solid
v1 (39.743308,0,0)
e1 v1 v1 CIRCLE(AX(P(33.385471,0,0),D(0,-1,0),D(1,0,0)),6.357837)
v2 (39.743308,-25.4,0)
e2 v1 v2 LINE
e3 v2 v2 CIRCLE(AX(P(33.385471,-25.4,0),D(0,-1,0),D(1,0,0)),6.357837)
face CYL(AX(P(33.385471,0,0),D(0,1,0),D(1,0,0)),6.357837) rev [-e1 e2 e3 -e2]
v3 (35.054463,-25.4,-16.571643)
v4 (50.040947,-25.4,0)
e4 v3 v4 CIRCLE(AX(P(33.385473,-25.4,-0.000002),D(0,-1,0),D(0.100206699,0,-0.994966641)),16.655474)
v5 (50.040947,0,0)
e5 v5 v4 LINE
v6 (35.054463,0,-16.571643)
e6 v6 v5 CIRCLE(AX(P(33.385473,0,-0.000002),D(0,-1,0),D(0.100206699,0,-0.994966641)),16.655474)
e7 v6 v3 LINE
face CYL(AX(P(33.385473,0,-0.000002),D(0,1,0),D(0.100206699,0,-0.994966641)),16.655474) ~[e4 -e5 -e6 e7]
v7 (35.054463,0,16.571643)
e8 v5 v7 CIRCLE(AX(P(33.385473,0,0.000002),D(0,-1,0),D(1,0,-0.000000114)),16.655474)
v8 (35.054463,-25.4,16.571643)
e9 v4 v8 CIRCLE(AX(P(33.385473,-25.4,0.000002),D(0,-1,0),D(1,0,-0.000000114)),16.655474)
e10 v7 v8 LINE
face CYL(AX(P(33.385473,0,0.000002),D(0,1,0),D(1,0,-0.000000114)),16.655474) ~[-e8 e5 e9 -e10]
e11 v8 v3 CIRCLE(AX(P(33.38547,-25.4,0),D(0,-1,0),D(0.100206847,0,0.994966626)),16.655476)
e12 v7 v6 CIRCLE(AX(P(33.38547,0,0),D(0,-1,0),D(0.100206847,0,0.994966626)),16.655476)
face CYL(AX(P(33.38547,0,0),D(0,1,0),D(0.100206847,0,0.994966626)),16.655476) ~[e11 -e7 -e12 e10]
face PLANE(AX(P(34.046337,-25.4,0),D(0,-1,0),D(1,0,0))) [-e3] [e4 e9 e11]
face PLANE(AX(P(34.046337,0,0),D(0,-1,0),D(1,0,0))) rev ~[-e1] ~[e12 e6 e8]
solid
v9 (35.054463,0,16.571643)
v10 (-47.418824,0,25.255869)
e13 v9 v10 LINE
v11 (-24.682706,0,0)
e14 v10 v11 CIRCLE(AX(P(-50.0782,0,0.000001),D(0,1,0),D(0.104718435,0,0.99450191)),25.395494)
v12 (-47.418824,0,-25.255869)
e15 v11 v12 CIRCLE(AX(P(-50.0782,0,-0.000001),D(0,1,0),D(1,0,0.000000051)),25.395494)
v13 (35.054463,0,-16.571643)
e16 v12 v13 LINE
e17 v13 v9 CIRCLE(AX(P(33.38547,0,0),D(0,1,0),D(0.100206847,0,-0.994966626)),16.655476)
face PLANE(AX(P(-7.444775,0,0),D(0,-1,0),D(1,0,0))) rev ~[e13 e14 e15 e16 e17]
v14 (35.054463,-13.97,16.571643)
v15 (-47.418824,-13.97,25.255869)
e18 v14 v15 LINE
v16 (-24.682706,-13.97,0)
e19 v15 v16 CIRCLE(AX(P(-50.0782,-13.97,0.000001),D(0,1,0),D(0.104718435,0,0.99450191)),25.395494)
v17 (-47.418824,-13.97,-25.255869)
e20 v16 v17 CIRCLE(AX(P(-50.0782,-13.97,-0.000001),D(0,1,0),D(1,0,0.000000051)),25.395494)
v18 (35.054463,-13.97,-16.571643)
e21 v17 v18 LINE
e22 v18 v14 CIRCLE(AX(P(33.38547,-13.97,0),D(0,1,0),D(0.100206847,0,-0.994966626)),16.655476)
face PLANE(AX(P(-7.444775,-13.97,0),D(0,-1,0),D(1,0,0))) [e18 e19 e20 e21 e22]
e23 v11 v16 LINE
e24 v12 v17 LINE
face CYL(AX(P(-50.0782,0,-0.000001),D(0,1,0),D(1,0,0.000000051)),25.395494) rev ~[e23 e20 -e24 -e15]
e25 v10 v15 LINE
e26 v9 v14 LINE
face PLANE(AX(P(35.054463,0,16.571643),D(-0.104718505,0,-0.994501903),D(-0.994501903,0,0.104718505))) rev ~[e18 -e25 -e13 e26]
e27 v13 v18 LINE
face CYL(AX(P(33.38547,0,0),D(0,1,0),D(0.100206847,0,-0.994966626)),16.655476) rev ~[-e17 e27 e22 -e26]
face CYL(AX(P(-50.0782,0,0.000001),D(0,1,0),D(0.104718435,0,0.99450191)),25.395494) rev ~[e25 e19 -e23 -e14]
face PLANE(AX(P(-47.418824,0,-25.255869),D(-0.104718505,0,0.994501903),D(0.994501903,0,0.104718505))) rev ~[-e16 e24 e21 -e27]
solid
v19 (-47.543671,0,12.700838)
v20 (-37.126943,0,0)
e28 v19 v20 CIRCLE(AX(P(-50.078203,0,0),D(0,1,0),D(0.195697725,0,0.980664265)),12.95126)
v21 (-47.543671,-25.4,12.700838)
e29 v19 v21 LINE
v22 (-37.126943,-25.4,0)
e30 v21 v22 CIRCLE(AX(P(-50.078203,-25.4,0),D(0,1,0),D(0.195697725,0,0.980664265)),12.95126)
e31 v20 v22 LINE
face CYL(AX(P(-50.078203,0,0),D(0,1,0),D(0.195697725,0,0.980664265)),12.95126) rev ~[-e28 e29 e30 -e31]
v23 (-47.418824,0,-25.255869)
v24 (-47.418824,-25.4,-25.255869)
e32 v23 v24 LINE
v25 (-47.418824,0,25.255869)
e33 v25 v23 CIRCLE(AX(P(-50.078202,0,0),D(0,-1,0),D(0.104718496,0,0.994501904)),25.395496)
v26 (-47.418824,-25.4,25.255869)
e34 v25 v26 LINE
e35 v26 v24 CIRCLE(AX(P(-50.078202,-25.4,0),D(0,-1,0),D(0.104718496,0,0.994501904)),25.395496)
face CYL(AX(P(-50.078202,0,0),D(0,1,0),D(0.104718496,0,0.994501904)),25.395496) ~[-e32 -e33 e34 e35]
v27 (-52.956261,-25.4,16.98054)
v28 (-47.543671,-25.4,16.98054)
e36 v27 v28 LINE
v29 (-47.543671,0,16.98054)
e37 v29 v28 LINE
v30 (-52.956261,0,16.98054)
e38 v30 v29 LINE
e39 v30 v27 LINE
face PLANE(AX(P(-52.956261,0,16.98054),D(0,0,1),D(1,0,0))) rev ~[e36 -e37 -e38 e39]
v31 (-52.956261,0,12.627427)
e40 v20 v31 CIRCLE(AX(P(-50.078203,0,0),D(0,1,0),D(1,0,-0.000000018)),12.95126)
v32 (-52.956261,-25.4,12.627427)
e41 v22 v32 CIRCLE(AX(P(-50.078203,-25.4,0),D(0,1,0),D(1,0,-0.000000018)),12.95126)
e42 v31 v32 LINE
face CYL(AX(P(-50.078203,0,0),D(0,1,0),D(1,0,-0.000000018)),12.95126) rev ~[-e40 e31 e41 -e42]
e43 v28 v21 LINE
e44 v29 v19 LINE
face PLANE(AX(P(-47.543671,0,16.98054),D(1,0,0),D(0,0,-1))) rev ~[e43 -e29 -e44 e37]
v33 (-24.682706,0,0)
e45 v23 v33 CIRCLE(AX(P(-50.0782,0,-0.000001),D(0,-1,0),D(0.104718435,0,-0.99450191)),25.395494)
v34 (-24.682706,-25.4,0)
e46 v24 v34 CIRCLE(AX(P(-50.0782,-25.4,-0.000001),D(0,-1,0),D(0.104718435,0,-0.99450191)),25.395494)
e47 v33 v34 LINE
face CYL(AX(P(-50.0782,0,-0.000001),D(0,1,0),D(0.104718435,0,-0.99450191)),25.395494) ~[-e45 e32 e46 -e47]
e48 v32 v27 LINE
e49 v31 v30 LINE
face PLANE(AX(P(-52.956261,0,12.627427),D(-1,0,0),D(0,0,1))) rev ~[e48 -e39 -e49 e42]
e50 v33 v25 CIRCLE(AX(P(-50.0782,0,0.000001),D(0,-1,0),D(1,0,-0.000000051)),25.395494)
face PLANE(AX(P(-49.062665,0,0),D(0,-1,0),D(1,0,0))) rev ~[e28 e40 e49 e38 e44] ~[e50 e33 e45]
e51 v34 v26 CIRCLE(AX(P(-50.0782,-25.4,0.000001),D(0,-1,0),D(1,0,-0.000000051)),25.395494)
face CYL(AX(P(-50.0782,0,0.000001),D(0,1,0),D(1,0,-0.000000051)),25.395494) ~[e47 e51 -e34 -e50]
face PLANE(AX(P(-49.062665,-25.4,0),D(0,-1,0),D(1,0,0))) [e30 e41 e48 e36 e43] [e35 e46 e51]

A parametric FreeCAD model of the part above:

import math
import FreeCAD as App
import Part
import Sketcher

V = App.Vector
Q = App.Units.Quantity

doc = App.newDocument("Part")
params = doc.addObject("Spreadsheet::Sheet", "Params")
for row, (alias, value) in enumerate([
    ("pad1_length", "1 in"),
    ("pad2_length", "1 in"),
    ("pad3_length", "0.55 in"),
], start=1):
    params.set(f"A{row}", alias)
    params.set(f"B{row}", "=" + value)
    params.setAlias(f"B{row}", alias)

body = doc.addObject("PartDesign::Body", "Body")

sketch1 = body.newObject("Sketcher::SketchObject", "Sketch")
sketch1.AttachmentSupport = (doc.getObject("XZ_Plane"), [""])
sketch1.MapMode = "FlatFace"
sketch1.addGeometry(Part.ArcOfCircle(Part.Circle(V(-50.1, 0, 0), V(0, 0, 1), 25.4), math.radians(-84), math.radians(0)), False)
sketch1.addGeometry(Part.ArcOfCircle(Part.Circle(V(-50.1, 0, 0), V(0, 0, 1), 25.4), math.radians(0), math.radians(84)), False)
sketch1.addGeometry(Part.ArcOfCircle(Part.Circle(V(-50.1, 0, 0), V(0, 0, 1), 25.4), math.radians(84), math.radians(276)), False)
sketch1.addGeometry(Part.LineSegment(V(-47.5, 17, 0), V(-47.5, 12.7, 0)), False)
sketch1.addGeometry(Part.ArcOfCircle(Part.Circle(V(-50.1, 0, 0), V(0, 0, 1), 13), math.radians(0), math.radians(79)), False)
sketch1.addGeometry(Part.ArcOfCircle(Part.Circle(V(-50.1, 0, 0), V(0, 0, 1), 13), math.radians(103), math.radians(360)), False)
sketch1.addGeometry(Part.LineSegment(V(-53, 12.6, 0), V(-53, 17, 0)), False)
sketch1.addGeometry(Part.LineSegment(V(-53, 17, 0), V(-47.5, 17, 0)), False)
sketch1.addConstraint(Sketcher.Constraint("Tangent", 0, 2, 1, 1))
sketch1.addConstraint(Sketcher.Constraint("Tangent", 1, 2, 2, 1))
sketch1.addConstraint(Sketcher.Constraint("Tangent", 2, 2, 0, 1))
sketch1.addConstraint(Sketcher.Constraint("Coincident", 3, 2, 4, 2))
sketch1.addConstraint(Sketcher.Constraint("Tangent", 4, 1, 5, 2))
sketch1.addConstraint(Sketcher.Constraint("Coincident", 5, 1, 6, 1))
sketch1.addConstraint(Sketcher.Constraint("Coincident", 6, 2, 7, 1))
sketch1.addConstraint(Sketcher.Constraint("Coincident", 7, 2, 3, 1))
sketch1.addConstraint(Sketcher.Constraint("Vertical", 3))
sketch1.addConstraint(Sketcher.Constraint("Vertical", 6))
sketch1.addConstraint(Sketcher.Constraint("Horizontal", 7))
sketch1.addConstraint(Sketcher.Constraint("Coincident", 4, 3, 0, 3))
sketch1.addConstraint(Sketcher.Constraint("Equal", 4, 5))
sketch1.addConstraint(Sketcher.Constraint("Symmetric", 1, 2, 2, 2, -1))
sketch1.addConstraint(Sketcher.Constraint("PointOnObject", 0, 2, -1))
sketch1.addConstraint(Sketcher.Constraint("PointOnObject", 4, 1, -1))
sketch1.addConstraint(Sketcher.Constraint("Radius", 4, Q("12.95126 mm")))
sketch1.addConstraint(Sketcher.Constraint("Radius", 0, Q("25.395494 mm")))
sketch1.addConstraint(Sketcher.Constraint("DistanceX", 1, 3, 1, 2, Q("0.1046999 in")))
sketch1.addConstraint(Sketcher.Constraint("DistanceX", 7, 1, 7, 2, Q("5.41259 mm")))
sketch1.addConstraint(Sketcher.Constraint("DistanceX", 0, 3, -1, 1, Q("50.0782 mm")))
sketch1.addConstraint(Sketcher.Constraint("DistanceY", 3, 2, 3, 1, Q("4.279702 mm")))
sketch1.addConstraint(Sketcher.Constraint("DistanceY", 6, 1, 6, 2, Q("4.353113 mm")))
pad1 = body.newObject("PartDesign::Pad", "Pad")
pad1.Profile = sketch1
pad1.setExpression("Length", "Params.pad1_length")
body2 = doc.addObject("PartDesign::Body", "Body001")

sketch2 = body2.newObject("Sketcher::SketchObject", "Sketch001")
sketch2.AttachmentSupport = (doc.getObject("XZ_Plane001"), [""])
sketch2.MapMode = "FlatFace"
sketch2.addGeometry(Part.ArcOfCircle(Part.Circle(V(33, 0, 0), V(0, 0, 1), 17), math.radians(0), math.radians(84)), False)
sketch2.addGeometry(Part.ArcOfCircle(Part.Circle(V(33, 0, 0), V(0, 0, 1), 17), math.radians(84), math.radians(276)), False)
sketch2.addGeometry(Part.ArcOfCircle(Part.Circle(V(33, 0, 0), V(0, 0, 1), 17), math.radians(-84), math.radians(0)), False)
sketch2.addGeometry(Part.Circle(V(33, 0, 0), V(0, 0, 1), 6), False)
sketch2.addConstraint(Sketcher.Constraint("Tangent", 0, 2, 1, 1))
sketch2.addConstraint(Sketcher.Constraint("Tangent", 1, 2, 2, 1))
sketch2.addConstraint(Sketcher.Constraint("Tangent", 2, 2, 0, 1))
sketch2.addConstraint(Sketcher.Constraint("Coincident", 3, 3, 0, 3))
sketch2.addConstraint(Sketcher.Constraint("Symmetric", 0, 2, 1, 2, -1))
sketch2.addConstraint(Sketcher.Constraint("PointOnObject", 2, 2, -1))
sketch2.addConstraint(Sketcher.Constraint("Diameter", 3, Q("12.715674 mm")))
sketch2.addConstraint(Sketcher.Constraint("Radius", 0, Q("16.655474 mm")))
sketch2.addConstraint(Sketcher.Constraint("DistanceX", -1, 1, 1, 3, Q("33.38547 mm")))
sketch2.addConstraint(Sketcher.Constraint("DistanceX", 0, 3, 0, 2, Q("1.66899 mm")))
pad2 = body2.newObject("PartDesign::Pad", "Pad001")
pad2.Profile = sketch2
pad2.setExpression("Length", "Params.pad2_length")
body3 = doc.addObject("PartDesign::Body", "Body002")

sketch3 = body3.newObject("Sketcher::SketchObject", "Sketch002")
sketch3.AttachmentSupport = (doc.getObject("XZ_Plane002"), [""])
sketch3.MapMode = "FlatFace"
sketch3.addGeometry(Part.ArcOfCircle(Part.Circle(V(-50, 0, 0), V(0, 0, 1), 25), math.radians(0), math.radians(84)), False)
sketch3.addGeometry(Part.ArcOfCircle(Part.Circle(V(-50, 0, 0), V(0, 0, 1), 25), math.radians(-84), math.radians(0)), False)
sketch3.addGeometry(Part.LineSegment(V(-47, -25, 0), V(35, -17, 0)), False)
sketch3.addGeometry(Part.ArcOfCircle(Part.Circle(V(33, 0, 0), V(0, 0, 1), 17), math.radians(84), math.radians(276)), False)
sketch3.addGeometry(Part.LineSegment(V(35, 17, 0), V(-47, 25, 0)), False)
sketch3.addConstraint(Sketcher.Constraint("Tangent", 0, 1, 1, 2))
sketch3.addConstraint(Sketcher.Constraint("Tangent", 1, 1, 2, 1))
sketch3.addConstraint(Sketcher.Constraint("Coincident", 2, 2, 3, 2))
sketch3.addConstraint(Sketcher.Constraint("Coincident", 3, 1, 4, 1))
sketch3.addConstraint(Sketcher.Constraint("Tangent", 4, 2, 0, 2))
sketch3.addConstraint(Sketcher.Constraint("Equal", 0, 1))
sketch3.addConstraint(Sketcher.Constraint("Symmetric", 2, 2, 3, 1, -1))
sketch3.addConstraint(Sketcher.Constraint("PointOnObject", 0, 3, -1))
sketch3.addConstraint(Sketcher.Constraint("PointOnObject", 0, 1, -1))
sketch3.addConstraint(Sketcher.Constraint("Radius", 0, Q("25.395494 mm")))
sketch3.addConstraint(Sketcher.Constraint("Radius", 3, Q("16.655476 mm")))
sketch3.addConstraint(Sketcher.Constraint("DistanceX", 0, 3, 4, 2, Q("0.1046999 in")))
sketch3.addConstraint(Sketcher.Constraint("DistanceX", 0, 3, -1, 1, Q("50.0782 mm")))
sketch3.addConstraint(Sketcher.Constraint("Distance", 2, Q("82.92924 mm")))
pad3 = body3.newObject("PartDesign::Pad", "Pad002")
pad3.Profile = sketch3
pad3.setExpression("Length", "Params.pad3_length")

doc.recompute()
